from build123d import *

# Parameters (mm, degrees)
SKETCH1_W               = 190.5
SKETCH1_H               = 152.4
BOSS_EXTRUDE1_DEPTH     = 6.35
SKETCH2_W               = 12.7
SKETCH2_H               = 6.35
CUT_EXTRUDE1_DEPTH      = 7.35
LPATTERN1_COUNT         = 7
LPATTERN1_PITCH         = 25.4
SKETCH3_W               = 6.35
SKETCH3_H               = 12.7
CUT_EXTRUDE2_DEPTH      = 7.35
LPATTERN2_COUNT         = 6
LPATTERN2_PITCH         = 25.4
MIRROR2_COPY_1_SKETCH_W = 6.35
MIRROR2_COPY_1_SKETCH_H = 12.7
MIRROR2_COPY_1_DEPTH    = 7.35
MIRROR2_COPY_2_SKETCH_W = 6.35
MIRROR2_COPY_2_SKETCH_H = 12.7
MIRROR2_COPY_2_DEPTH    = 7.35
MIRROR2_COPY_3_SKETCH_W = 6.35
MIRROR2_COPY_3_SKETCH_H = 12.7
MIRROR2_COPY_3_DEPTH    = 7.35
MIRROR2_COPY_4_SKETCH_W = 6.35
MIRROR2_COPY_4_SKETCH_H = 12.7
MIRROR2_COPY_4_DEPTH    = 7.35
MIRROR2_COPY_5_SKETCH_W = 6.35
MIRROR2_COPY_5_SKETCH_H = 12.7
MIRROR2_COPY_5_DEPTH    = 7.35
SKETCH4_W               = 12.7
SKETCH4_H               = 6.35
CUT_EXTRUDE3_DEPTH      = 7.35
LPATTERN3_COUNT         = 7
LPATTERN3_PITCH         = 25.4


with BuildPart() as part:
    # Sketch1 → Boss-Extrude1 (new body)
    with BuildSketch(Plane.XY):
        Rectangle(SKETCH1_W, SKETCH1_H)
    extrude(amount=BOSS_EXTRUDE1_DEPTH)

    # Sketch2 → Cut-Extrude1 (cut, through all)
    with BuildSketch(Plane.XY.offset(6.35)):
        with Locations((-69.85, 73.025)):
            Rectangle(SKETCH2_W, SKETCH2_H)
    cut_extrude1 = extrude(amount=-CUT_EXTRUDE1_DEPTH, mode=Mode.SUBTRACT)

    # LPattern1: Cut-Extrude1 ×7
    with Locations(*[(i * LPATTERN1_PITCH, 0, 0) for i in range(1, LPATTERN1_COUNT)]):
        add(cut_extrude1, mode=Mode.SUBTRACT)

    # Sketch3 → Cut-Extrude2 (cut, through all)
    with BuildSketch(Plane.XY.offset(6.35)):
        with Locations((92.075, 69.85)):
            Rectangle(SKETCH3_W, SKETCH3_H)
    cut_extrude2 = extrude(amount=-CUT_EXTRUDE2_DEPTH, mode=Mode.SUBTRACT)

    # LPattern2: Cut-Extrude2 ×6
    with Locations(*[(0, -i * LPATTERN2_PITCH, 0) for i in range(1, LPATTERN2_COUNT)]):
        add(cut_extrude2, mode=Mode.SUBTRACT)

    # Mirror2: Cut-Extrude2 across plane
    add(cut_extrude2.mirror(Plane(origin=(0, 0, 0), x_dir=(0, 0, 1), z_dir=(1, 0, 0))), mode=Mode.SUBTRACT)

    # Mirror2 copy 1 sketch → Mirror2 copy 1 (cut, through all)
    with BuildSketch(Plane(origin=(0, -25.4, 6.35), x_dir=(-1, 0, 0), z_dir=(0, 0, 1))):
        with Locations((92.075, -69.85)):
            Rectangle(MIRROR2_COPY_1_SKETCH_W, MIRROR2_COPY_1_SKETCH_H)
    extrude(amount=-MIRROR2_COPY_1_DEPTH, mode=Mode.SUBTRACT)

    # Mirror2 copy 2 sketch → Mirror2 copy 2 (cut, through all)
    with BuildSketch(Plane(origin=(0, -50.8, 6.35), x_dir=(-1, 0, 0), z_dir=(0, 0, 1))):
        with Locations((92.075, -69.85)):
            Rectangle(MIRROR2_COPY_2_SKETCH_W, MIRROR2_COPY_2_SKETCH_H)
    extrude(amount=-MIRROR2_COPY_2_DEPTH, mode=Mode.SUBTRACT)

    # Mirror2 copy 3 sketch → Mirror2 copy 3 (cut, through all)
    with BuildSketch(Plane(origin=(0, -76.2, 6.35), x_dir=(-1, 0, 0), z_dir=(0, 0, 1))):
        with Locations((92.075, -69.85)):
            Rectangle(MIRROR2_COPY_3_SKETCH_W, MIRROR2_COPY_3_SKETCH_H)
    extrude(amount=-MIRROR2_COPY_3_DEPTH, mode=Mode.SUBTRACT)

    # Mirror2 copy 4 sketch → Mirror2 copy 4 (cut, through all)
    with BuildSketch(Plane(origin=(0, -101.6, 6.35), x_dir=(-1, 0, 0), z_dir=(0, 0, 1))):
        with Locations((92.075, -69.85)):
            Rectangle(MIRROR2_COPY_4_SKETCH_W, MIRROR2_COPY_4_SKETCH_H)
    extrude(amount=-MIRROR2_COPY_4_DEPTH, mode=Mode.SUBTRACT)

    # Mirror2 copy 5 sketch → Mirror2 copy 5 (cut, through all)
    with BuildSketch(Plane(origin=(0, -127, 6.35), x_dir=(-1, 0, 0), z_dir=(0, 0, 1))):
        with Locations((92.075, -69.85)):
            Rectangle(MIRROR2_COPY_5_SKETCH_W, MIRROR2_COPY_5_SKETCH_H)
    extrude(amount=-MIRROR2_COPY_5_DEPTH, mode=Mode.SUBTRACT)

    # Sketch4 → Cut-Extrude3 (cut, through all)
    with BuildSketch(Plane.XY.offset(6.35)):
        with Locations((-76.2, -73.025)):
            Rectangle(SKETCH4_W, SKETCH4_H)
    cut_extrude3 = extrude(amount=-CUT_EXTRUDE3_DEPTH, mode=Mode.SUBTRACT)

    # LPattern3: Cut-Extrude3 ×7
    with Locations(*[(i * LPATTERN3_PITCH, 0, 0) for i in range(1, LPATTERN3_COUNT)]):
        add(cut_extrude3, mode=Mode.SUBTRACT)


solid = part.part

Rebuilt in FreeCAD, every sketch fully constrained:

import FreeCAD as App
import Part
import Sketcher
Q = App.Units.Quantity

doc = App.newDocument("Part")
body = doc.addObject("PartDesign::Body", "Body")

sketch1 = body.newObject("Sketcher::SketchObject", "Sketch")
sketch1.AttachmentSupport = (doc.getObject("XY_Plane"), [""])
sketch1.MapMode = "FlatFace"
sketch1.addGeometry(Part.LineSegment(App.Vector(-95, 76, 0), App.Vector(-95, -76, 0)), False)
sketch1.addGeometry(Part.LineSegment(App.Vector(-95, -76, 0), App.Vector(95, -76, 0)), False)
sketch1.addGeometry(Part.LineSegment(App.Vector(95, -76, 0), App.Vector(95, 76, 0)), False)
sketch1.addGeometry(Part.LineSegment(App.Vector(95, 76, 0), App.Vector(-95, 76, 0)), False)
sketch1.addConstraint(Sketcher.Constraint("Coincident", 0, 2, 1, 1))
sketch1.addConstraint(Sketcher.Constraint("Coincident", 1, 2, 2, 1))
sketch1.addConstraint(Sketcher.Constraint("Coincident", 2, 2, 3, 1))
sketch1.addConstraint(Sketcher.Constraint("Coincident", 3, 2, 0, 1))
sketch1.addConstraint(Sketcher.Constraint("Vertical", 0))
sketch1.addConstraint(Sketcher.Constraint("Horizontal", 1))
sketch1.addConstraint(Sketcher.Constraint("Vertical", 2))
sketch1.addConstraint(Sketcher.Constraint("Horizontal", 3))
sketch1.addConstraint(Sketcher.Constraint("Symmetric", 0, 2, 2, 2, -1, 1))
sketch1.addConstraint(Sketcher.Constraint("DistanceY", 0, 2, 0, 1, Q("6 in")))
sketch1.addConstraint(Sketcher.Constraint("DistanceX", 1, 1, 1, 2, Q("7.5 in")))
pad1 = body.newObject("PartDesign::Pad", "Pad")
pad1.Profile = sketch1
pad1.Length = Q("0.25 in")

sketch2 = body.newObject("Sketcher::SketchObject", "Sketch001")
sketch2.AttachmentSupport = (doc.getObject("XY_Plane"), [""])
sketch2.MapMode = "FlatFace"
sketch2.AttachmentOffset = App.Placement(App.Vector(0, 0, 0.25 * 25.4), App.Rotation())
sketch2.addGeometry(Part.LineSegment(App.Vector(-76, 76, 0), App.Vector(-76, 70, 0)), False)
sketch2.addGeometry(Part.LineSegment(App.Vector(-76, 70, 0), App.Vector(-64, 70, 0)), False)
sketch2.addGeometry(Part.LineSegment(App.Vector(-64, 70, 0), App.Vector(-64, 76, 0)), False)
sketch2.addGeometry(Part.LineSegment(App.Vector(-64, 76, 0), App.Vector(-76, 76, 0)), False)
sketch2.addConstraint(Sketcher.Constraint("Coincident", 0, 2, 1, 1))
sketch2.addConstraint(Sketcher.Constraint("Coincident", 1, 2, 2, 1))
sketch2.addConstraint(Sketcher.Constraint("Coincident", 2, 2, 3, 1))
sketch2.addConstraint(Sketcher.Constraint("Coincident", 3, 2, 0, 1))
sketch2.addConstraint(Sketcher.Constraint("Vertical", 0))
sketch2.addConstraint(Sketcher.Constraint("Horizontal", 1))
sketch2.addConstraint(Sketcher.Constraint("Vertical", 2))
sketch2.addConstraint(Sketcher.Constraint("Horizontal", 3))
sketch2.addConstraint(Sketcher.Constraint("DistanceX", 1, 1, 1, 2, Q("0.5 in")))
sketch2.addConstraint(Sketcher.Constraint("DistanceX", 0, 2, -1, 1, Q("3 in")))
sketch2.addConstraint(Sketcher.Constraint("DistanceY", -1, 1, 2, 2, Q("3 in")))
sketch2.addConstraint(Sketcher.Constraint("DistanceY", 0, 2, 0, 1, Q("0.25 in")))
pocket1 = body.newObject("PartDesign::Pocket", "Pocket")
pocket1.Profile = sketch2
pocket1.Type = "ThroughAll"
doc.recompute()

linearpattern = body.newObject("PartDesign::LinearPattern", "LinearPattern")
linearpattern.Originals = [pocket1]
linearpattern.Direction = (doc.getObject("X_Axis"), [""])
linearpattern.Mode = "offset"
linearpattern.Offset = Q("1 in")
linearpattern.Occurrences = 7
body.Tip = linearpattern

sketch3 = body.newObject("Sketcher::SketchObject", "Sketch002")
sketch3.AttachmentSupport = (doc.getObject("XY_Plane"), [""])
sketch3.MapMode = "FlatFace"
sketch3.AttachmentOffset = App.Placement(App.Vector(0, 0, 0.25 * 25.4), App.Rotation())
sketch3.addGeometry(Part.LineSegment(App.Vector(89, 76, 0), App.Vector(89, 64, 0)), False)
sketch3.addGeometry(Part.LineSegment(App.Vector(89, 64, 0), App.Vector(95, 64, 0)), False)
sketch3.addGeometry(Part.LineSegment(App.Vector(95, 64, 0), App.Vector(95, 76, 0)), False)
sketch3.addGeometry(Part.LineSegment(App.Vector(95, 76, 0), App.Vector(89, 76, 0)), False)
sketch3.addConstraint(Sketcher.Constraint("Coincident", 0, 2, 1, 1))
sketch3.addConstraint(Sketcher.Constraint("Coincident", 1, 2, 2, 1))
sketch3.addConstraint(Sketcher.Constraint("Coincident", 2, 2, 3, 1))
sketch3.addConstraint(Sketcher.Constraint("Coincident", 3, 2, 0, 1))
sketch3.addConstraint(Sketcher.Constraint("Vertical", 0))
sketch3.addConstraint(Sketcher.Constraint("Horizontal", 1))
sketch3.addConstraint(Sketcher.Constraint("Vertical", 2))
sketch3.addConstraint(Sketcher.Constraint("Horizontal", 3))
sketch3.addConstraint(Sketcher.Constraint("DistanceY", 0, 2, 0, 1, Q("0.5 in")))
sketch3.addConstraint(Sketcher.Constraint("DistanceY", -1, 1, 2, 2, Q("3 in")))
sketch3.addConstraint(Sketcher.Constraint("DistanceX", 1, 1, 1, 2, Q("0.25 in")))
sketch3.addConstraint(Sketcher.Constraint("DistanceX", -1, 1, 0, 2, Q("3.5 in")))
pocket2 = body.newObject("PartDesign::Pocket", "Pocket001")
pocket2.Profile = sketch3
pocket2.Type = "ThroughAll"
doc.recompute()

linearpattern2 = body.newObject("PartDesign::LinearPattern", "LinearPattern001")
linearpattern2.Originals = [pocket2]
linearpattern2.Direction = (doc.getObject("Y_Axis"), [""])
linearpattern2.Mode = "offset"
linearpattern2.Offset = Q("1 in")
linearpattern2.Occurrences = 6
linearpattern2.Reversed = True
body.Tip = linearpattern2
doc.recompute()

mirrored = body.newObject("PartDesign::Mirrored", "Mirrored")
mirrored.Originals = [pocket2]
mirrored.MirrorPlane = (doc.getObject("YZ_Plane"), [""])
body.Tip = mirrored

sketch4 = body.newObject("Sketcher::SketchObject", "Sketch003")
sketch4.AttachmentSupport = (doc.getObject("XY_Plane"), [""])
sketch4.MapMode = "FlatFace"
sketch4.AttachmentOffset = App.Placement(App.Vector(0, 0, 0.25 * 25.4), App.Rotation())
sketch4.addGeometry(Part.LineSegment(App.Vector(-89, 38, 0), App.Vector(-89, 51, 0)), False)
sketch4.addGeometry(Part.LineSegment(App.Vector(-89, 51, 0), App.Vector(-95, 51, 0)), False)
sketch4.addGeometry(Part.LineSegment(App.Vector(-95, 51, 0), App.Vector(-95, 38, 0)), False)
sketch4.addGeometry(Part.LineSegment(App.Vector(-95, 38, 0), App.Vector(-89, 38, 0)), False)
sketch4.addConstraint(Sketcher.Constraint("Coincident", 0, 2, 1, 1))
sketch4.addConstraint(Sketcher.Constraint("Coincident", 1, 2, 2, 1))
sketch4.addConstraint(Sketcher.Constraint("Coincident", 2, 2, 3, 1))
sketch4.addConstraint(Sketcher.Constraint("Coincident", 3, 2, 0, 1))
sketch4.addConstraint(Sketcher.Constraint("Vertical", 0))
sketch4.addConstraint(Sketcher.Constraint("Horizontal", 1))
sketch4.addConstraint(Sketcher.Constraint("Vertical", 2))
sketch4.addConstraint(Sketcher.Constraint("Horizontal", 3))
sketch4.addConstraint(Sketcher.Constraint("DistanceY", 0, 1, 0, 2, Q("0.5 in")))
sketch4.addConstraint(Sketcher.Constraint("DistanceY", -1, 1, 0, 2, Q("2 in")))
sketch4.addConstraint(Sketcher.Constraint("DistanceX", 1, 2, 1, 1, Q("0.25 in")))
sketch4.addConstraint(Sketcher.Constraint("DistanceX", 0, 2, -1, 1, Q("3.5 in")))
pocket3 = body.newObject("PartDesign::Pocket", "Pocket002")
pocket3.Profile = sketch4
pocket3.Type = "ThroughAll"

sketch5 = body.newObject("Sketcher::SketchObject", "Sketch004")
sketch5.AttachmentSupport = (doc.getObject("XY_Plane"), [""])
sketch5.MapMode = "FlatFace"
sketch5.AttachmentOffset = App.Placement(App.Vector(0, 0, 0.25 * 25.4), App.Rotation())
sketch5.addGeometry(Part.LineSegment(App.Vector(-89, 13, 0), App.Vector(-89, 25, 0)), False)
sketch5.addGeometry(Part.LineSegment(App.Vector(-89, 25, 0), App.Vector(-95, 25, 0)), False)
sketch5.addGeometry(Part.LineSegment(App.Vector(-95, 25, 0), App.Vector(-95, 13, 0)), False)
sketch5.addGeometry(Part.LineSegment(App.Vector(-95, 13, 0), App.Vector(-89, 13, 0)), False)
sketch5.addConstraint(Sketcher.Constraint("Coincident", 0, 2, 1, 1))
sketch5.addConstraint(Sketcher.Constraint("Coincident", 1, 2, 2, 1))
sketch5.addConstraint(Sketcher.Constraint("Coincident", 2, 2, 3, 1))
sketch5.addConstraint(Sketcher.Constraint("Coincident", 3, 2, 0, 1))
sketch5.addConstraint(Sketcher.Constraint("Vertical", 0))
sketch5.addConstraint(Sketcher.Constraint("Horizontal", 1))
sketch5.addConstraint(Sketcher.Constraint("Vertical", 2))
sketch5.addConstraint(Sketcher.Constraint("Horizontal", 3))
sketch5.addConstraint(Sketcher.Constraint("DistanceY", 0, 1, 0, 2, Q("0.5 in")))
sketch5.addConstraint(Sketcher.Constraint("DistanceY", -1, 1, 0, 2, Q("1 in")))
sketch5.addConstraint(Sketcher.Constraint("DistanceX", 1, 2, 1, 1, Q("0.25 in")))
sketch5.addConstraint(Sketcher.Constraint("DistanceX", 0, 2, -1, 1, Q("3.5 in")))
pocket4 = body.newObject("PartDesign::Pocket", "Pocket003")
pocket4.Profile = sketch5
pocket4.Type = "ThroughAll"

sketch6 = body.newObject("Sketcher::SketchObject", "Sketch005")
sketch6.AttachmentSupport = (doc.getObject("XY_Plane"), [""])
sketch6.MapMode = "FlatFace"
sketch6.AttachmentOffset = App.Placement(App.Vector(0, 0, 0.25 * 25.4), App.Rotation())
sketch6.addGeometry(Part.LineSegment(App.Vector(-89, -13, 0), App.Vector(-89, 0, 0)), False)
sketch6.addGeometry(Part.LineSegment(App.Vector(-89, 0, 0), App.Vector(-95, 0, 0)), False)
sketch6.addGeometry(Part.LineSegment(App.Vector(-95, 0, 0), App.Vector(-95, -13, 0)), False)
sketch6.addGeometry(Part.LineSegment(App.Vector(-95, -13, 0), App.Vector(-89, -13, 0)), False)
sketch6.addConstraint(Sketcher.Constraint("Coincident", 0, 2, 1, 1))
sketch6.addConstraint(Sketcher.Constraint("Coincident", 1, 2, 2, 1))
sketch6.addConstraint(Sketcher.Constraint("Coincident", 2, 2, 3, 1))
sketch6.addConstraint(Sketcher.Constraint("Coincident", 3, 2, 0, 1))
sketch6.addConstraint(Sketcher.Constraint("Vertical", 0))
sketch6.addConstraint(Sketcher.Constraint("Horizontal", 1))
sketch6.addConstraint(Sketcher.Constraint("Vertical", 2))
sketch6.addConstraint(Sketcher.Constraint("Horizontal", 3))
sketch6.addConstraint(Sketcher.Constraint("PointOnObject", 0, 2, -1))
sketch6.addConstraint(Sketcher.Constraint("DistanceY", 0, 1, 0, 2, Q("0.5 in")))
sketch6.addConstraint(Sketcher.Constraint("DistanceX", 1, 2, 1, 1, Q("0.25 in")))
sketch6.addConstraint(Sketcher.Constraint("DistanceX", 0, 2, -1, 1, Q("3.5 in")))
pocket5 = body.newObject("PartDesign::Pocket", "Pocket004")
pocket5.Profile = sketch6
pocket5.Type = "ThroughAll"

sketch7 = body.newObject("Sketcher::SketchObject", "Sketch006")
sketch7.AttachmentSupport = (doc.getObject("XY_Plane"), [""])
sketch7.MapMode = "FlatFace"
sketch7.AttachmentOffset = App.Placement(App.Vector(0, 0, 0.25 * 25.4), App.Rotation())
sketch7.addGeometry(Part.LineSegment(App.Vector(-89, -38, 0), App.Vector(-89, -25, 0)), False)
sketch7.addGeometry(Part.LineSegment(App.Vector(-89, -25, 0), App.Vector(-95, -25, 0)), False)
sketch7.addGeometry(Part.LineSegment(App.Vector(-95, -25, 0), App.Vector(-95, -38, 0)), False)
sketch7.addGeometry(Part.LineSegment(App.Vector(-95, -38, 0), App.Vector(-89, -38, 0)), False)
sketch7.addConstraint(Sketcher.Constraint("Coincident", 0, 2, 1, 1))
sketch7.addConstraint(Sketcher.Constraint("Coincident", 1, 2, 2, 1))
sketch7.addConstraint(Sketcher.Constraint("Coincident", 2, 2, 3, 1))
sketch7.addConstraint(Sketcher.Constraint("Coincident", 3, 2, 0, 1))
sketch7.addConstraint(Sketcher.Constraint("Vertical", 0))
sketch7.addConstraint(Sketcher.Constraint("Horizontal", 1))
sketch7.addConstraint(Sketcher.Constraint("Vertical", 2))
sketch7.addConstraint(Sketcher.Constraint("Horizontal", 3))
sketch7.addConstraint(Sketcher.Constraint("DistanceY", 0, 1, 0, 2, Q("0.5 in")))
sketch7.addConstraint(Sketcher.Constraint("DistanceY", 0, 2, -1, 1, Q("1 in")))
sketch7.addConstraint(Sketcher.Constraint("DistanceX", 1, 2, 1, 1, Q("0.25 in")))
sketch7.addConstraint(Sketcher.Constraint("DistanceX", 0, 2, -1, 1, Q("3.5 in")))
pocket6 = body.newObject("PartDesign::Pocket", "Pocket005")
pocket6.Profile = sketch7
pocket6.Type = "ThroughAll"

sketch8 = body.newObject("Sketcher::SketchObject", "Sketch007")
sketch8.AttachmentSupport = (doc.getObject("XY_Plane"), [""])
sketch8.MapMode = "FlatFace"
sketch8.AttachmentOffset = App.Placement(App.Vector(0, 0, 0.25 * 25.4), App.Rotation())
sketch8.addGeometry(Part.LineSegment(App.Vector(-89, -64, 0), App.Vector(-89, -51, 0)), False)
sketch8.addGeometry(Part.LineSegment(App.Vector(-89, -51, 0), App.Vector(-95, -51, 0)), False)
sketch8.addGeometry(Part.LineSegment(App.Vector(-95, -51, 0), App.Vector(-95, -64, 0)), False)
sketch8.addGeometry(Part.LineSegment(App.Vector(-95, -64, 0), App.Vector(-89, -64, 0)), False)
sketch8.addConstraint(Sketcher.Constraint("Coincident", 0, 2, 1, 1))
sketch8.addConstraint(Sketcher.Constraint("Coincident", 1, 2, 2, 1))
sketch8.addConstraint(Sketcher.Constraint("Coincident", 2, 2, 3, 1))
sketch8.addConstraint(Sketcher.Constraint("Coincident", 3, 2, 0, 1))
sketch8.addConstraint(Sketcher.Constraint("Vertical", 0))
sketch8.addConstraint(Sketcher.Constraint("Horizontal", 1))
sketch8.addConstraint(Sketcher.Constraint("Vertical", 2))
sketch8.addConstraint(Sketcher.Constraint("Horizontal", 3))
sketch8.addConstraint(Sketcher.Constraint("DistanceY", 0, 1, 0, 2, Q("0.5 in")))
sketch8.addConstraint(Sketcher.Constraint("DistanceY", 0, 2, -1, 1, Q("2 in")))
sketch8.addConstraint(Sketcher.Constraint("DistanceX", 1, 2, 1, 1, Q("0.25 in")))
sketch8.addConstraint(Sketcher.Constraint("DistanceX", 0, 2, -1, 1, Q("3.5 in")))
pocket7 = body.newObject("PartDesign::Pocket", "Pocket006")
pocket7.Profile = sketch8
pocket7.Type = "ThroughAll"

sketch9 = body.newObject("Sketcher::SketchObject", "Sketch008")
sketch9.AttachmentSupport = (doc.getObject("XY_Plane"), [""])
sketch9.MapMode = "FlatFace"
sketch9.AttachmentOffset = App.Placement(App.Vector(0, 0, 0.25 * 25.4), App.Rotation())
sketch9.addGeometry(Part.LineSegment(App.Vector(-83, -70, 0), App.Vector(-83, -76, 0)), False)
sketch9.addGeometry(Part.LineSegment(App.Vector(-83, -76, 0), App.Vector(-70, -76, 0)), False)
sketch9.addGeometry(Part.LineSegment(App.Vector(-70, -76, 0), App.Vector(-70, -70, 0)), False)
sketch9.addGeometry(Part.LineSegment(App.Vector(-70, -70, 0), App.Vector(-83, -70, 0)), False)
sketch9.addConstraint(Sketcher.Constraint("Coincident", 0, 2, 1, 1))
sketch9.addConstraint(Sketcher.Constraint("Coincident", 1, 2, 2, 1))
sketch9.addConstraint(Sketcher.Constraint("Coincident", 2, 2, 3, 1))
sketch9.addConstraint(Sketcher.Constraint("Coincident", 3, 2, 0, 1))
sketch9.addConstraint(Sketcher.Constraint("Vertical", 0))
sketch9.addConstraint(Sketcher.Constraint("Horizontal", 1))
sketch9.addConstraint(Sketcher.Constraint("Vertical", 2))
sketch9.addConstraint(Sketcher.Constraint("Horizontal", 3))
sketch9.addConstraint(Sketcher.Constraint("DistanceX", 1, 1, 1, 2, Q("0.5 in")))
sketch9.addConstraint(Sketcher.Constraint("DistanceY", 0, 2, -1, 1, Q("3 in")))
sketch9.addConstraint(Sketcher.Constraint("DistanceY", 0, 2, 0, 1, Q("0.25 in")))
sketch9.addConstraint(Sketcher.Constraint("DistanceX", 0, 2, -1, 1, Q("3.25 in")))
pocket8 = body.newObject("PartDesign::Pocket", "Pocket007")
pocket8.Profile = sketch9
pocket8.Type = "ThroughAll"
doc.recompute()

linearpattern3 = body.newObject("PartDesign::LinearPattern", "LinearPattern002")
linearpattern3.Originals = [pocket8]
linearpattern3.Direction = (doc.getObject("X_Axis"), [""])
linearpattern3.Mode = "offset"
linearpattern3.Offset = Q("1 in")
linearpattern3.Occurrences = 7
body.Tip = linearpattern3

doc.recompute()
